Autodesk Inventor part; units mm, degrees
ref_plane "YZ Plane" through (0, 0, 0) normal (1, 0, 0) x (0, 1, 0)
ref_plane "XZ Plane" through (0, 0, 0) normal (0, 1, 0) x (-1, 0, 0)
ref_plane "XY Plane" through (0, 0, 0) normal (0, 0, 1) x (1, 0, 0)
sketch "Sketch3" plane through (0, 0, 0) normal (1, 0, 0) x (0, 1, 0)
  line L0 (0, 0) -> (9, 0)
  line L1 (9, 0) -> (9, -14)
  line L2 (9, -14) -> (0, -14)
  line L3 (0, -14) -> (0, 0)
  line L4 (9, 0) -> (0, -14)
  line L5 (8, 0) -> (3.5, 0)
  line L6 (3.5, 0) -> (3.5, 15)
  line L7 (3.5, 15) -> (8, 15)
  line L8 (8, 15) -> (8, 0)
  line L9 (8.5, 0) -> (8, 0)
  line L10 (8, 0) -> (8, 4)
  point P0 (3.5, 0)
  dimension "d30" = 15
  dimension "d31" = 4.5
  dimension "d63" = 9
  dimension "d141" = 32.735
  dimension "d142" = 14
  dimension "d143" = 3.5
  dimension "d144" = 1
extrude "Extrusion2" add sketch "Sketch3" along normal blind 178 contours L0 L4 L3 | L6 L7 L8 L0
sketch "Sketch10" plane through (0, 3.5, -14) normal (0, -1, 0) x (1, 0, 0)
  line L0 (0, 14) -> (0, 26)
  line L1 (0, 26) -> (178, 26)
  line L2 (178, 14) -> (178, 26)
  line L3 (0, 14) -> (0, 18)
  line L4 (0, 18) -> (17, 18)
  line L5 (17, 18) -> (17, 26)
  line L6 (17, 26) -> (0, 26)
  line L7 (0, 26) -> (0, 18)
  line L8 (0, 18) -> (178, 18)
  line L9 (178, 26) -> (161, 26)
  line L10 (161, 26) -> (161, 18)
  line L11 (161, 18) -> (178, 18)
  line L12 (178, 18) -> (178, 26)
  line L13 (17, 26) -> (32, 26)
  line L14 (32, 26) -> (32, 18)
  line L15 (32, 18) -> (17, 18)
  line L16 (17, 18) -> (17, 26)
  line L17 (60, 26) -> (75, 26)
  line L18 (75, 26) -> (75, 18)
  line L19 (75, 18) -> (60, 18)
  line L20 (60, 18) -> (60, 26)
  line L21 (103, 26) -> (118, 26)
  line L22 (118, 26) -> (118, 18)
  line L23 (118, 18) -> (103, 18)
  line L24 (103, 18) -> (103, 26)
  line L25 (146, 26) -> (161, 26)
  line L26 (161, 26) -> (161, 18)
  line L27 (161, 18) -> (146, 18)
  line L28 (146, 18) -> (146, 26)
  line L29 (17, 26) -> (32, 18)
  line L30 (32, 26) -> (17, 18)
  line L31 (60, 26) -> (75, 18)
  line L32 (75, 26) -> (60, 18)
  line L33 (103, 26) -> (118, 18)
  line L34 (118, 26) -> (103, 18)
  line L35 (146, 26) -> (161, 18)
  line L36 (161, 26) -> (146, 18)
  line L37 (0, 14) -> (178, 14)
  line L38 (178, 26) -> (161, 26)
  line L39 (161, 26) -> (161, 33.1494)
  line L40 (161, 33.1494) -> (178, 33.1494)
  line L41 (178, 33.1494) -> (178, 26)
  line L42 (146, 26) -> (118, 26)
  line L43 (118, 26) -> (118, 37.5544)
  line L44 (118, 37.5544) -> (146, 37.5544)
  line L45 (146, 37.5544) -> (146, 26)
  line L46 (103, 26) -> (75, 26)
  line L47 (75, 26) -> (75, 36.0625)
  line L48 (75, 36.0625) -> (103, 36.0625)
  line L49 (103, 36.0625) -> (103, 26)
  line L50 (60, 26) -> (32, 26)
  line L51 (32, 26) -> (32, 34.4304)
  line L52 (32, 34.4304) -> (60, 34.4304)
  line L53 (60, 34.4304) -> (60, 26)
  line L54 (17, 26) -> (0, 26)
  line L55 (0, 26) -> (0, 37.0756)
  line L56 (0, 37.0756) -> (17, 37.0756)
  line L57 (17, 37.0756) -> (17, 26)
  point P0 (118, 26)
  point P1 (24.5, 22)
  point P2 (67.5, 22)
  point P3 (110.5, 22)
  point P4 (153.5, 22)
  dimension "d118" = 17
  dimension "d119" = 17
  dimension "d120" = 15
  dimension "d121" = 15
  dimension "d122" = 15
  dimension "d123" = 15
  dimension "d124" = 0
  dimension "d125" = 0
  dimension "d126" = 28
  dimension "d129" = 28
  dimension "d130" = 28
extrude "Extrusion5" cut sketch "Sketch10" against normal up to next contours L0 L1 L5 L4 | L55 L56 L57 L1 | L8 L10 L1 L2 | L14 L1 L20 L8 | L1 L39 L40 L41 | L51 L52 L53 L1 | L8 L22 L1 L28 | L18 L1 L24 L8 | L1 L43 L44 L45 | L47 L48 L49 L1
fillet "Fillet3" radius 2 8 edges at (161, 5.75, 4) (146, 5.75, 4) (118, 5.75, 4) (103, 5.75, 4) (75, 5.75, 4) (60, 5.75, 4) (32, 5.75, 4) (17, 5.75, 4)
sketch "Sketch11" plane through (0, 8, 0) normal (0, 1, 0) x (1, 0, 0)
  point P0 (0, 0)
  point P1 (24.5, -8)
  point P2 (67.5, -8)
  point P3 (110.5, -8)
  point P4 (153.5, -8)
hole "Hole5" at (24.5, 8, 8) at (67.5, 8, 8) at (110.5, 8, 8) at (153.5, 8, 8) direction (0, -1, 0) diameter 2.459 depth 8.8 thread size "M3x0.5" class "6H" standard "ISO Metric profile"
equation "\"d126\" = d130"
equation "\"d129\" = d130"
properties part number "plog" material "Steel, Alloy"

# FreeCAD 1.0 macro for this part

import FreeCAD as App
import Part
import Sketcher

V = App.Vector
Q = App.Units.Quantity


def edges_at(feature, points):
    """Names of the edges that pass closest to the given points."""
    edges = feature.Shape.Edges
    near = lambda p: min(range(len(edges)), key=lambda i: edges[i].distToShape(Part.Vertex(*p))[0])
    return sorted({f"Edge{near(p) + 1}" for p in points})

doc = App.newDocument("Part")
body = doc.addObject("PartDesign::Body", "Body")

sketch1 = body.newObject("Sketcher::SketchObject", "Sketch")
sketch1.AttachmentSupport = (doc.getObject("YZ_Plane"), [""])
sketch1.MapMode = "FlatFace"
sketch1.addGeometry(Part.LineSegment(V(3.5, 0, 0), V(0, 0, 0)), False)
sketch1.addGeometry(Part.LineSegment(V(0, 0, 0), V(0, -14, 0)), False)
sketch1.addGeometry(Part.LineSegment(V(0, -14, 0), V(9, 0, 0)), False)
sketch1.addGeometry(Part.LineSegment(V(9, 0, 0), V(8, 0, 0)), False)
sketch1.addGeometry(Part.LineSegment(V(8, 0, 0), V(8, 15, 0)), False)
sketch1.addGeometry(Part.LineSegment(V(8, 15, 0), V(3.5, 15, 0)), False)
sketch1.addGeometry(Part.LineSegment(V(3.5, 15, 0), V(3.5, 0, 0)), False)
sketch1.addConstraint(Sketcher.Constraint("Coincident", 0, 2, 1, 1))
sketch1.addConstraint(Sketcher.Constraint("Coincident", 1, 2, 2, 1))
sketch1.addConstraint(Sketcher.Constraint("Coincident", 2, 2, 3, 1))
sketch1.addConstraint(Sketcher.Constraint("Coincident", 3, 2, 4, 1))
sketch1.addConstraint(Sketcher.Constraint("Coincident", 4, 2, 5, 1))
sketch1.addConstraint(Sketcher.Constraint("Coincident", 5, 2, 6, 1))
sketch1.addConstraint(Sketcher.Constraint("Coincident", 6, 2, 0, 1))
sketch1.addConstraint(Sketcher.Constraint("Horizontal", 0))
sketch1.addConstraint(Sketcher.Constraint("Vertical", 1))
sketch1.addConstraint(Sketcher.Constraint("Horizontal", 3))
sketch1.addConstraint(Sketcher.Constraint("Vertical", 4))
sketch1.addConstraint(Sketcher.Constraint("Horizontal", 5))
sketch1.addConstraint(Sketcher.Constraint("Vertical", 6))
sketch1.addConstraint(Sketcher.Constraint("Coincident", 0, 2, -1, 1))
sketch1.addConstraint(Sketcher.Constraint("PointOnObject", 2, 2, -1))
sketch1.addConstraint(Sketcher.Constraint("DistanceX", 3, 2, 3, 1, Q("1 mm")))
sketch1.addConstraint(Sketcher.Constraint("DistanceY", 1, 2, 1, 1, Q("14 mm")))
sketch1.addConstraint(Sketcher.Constraint("DistanceY", 4, 1, 4, 2, Q("15 mm")))
sketch1.addConstraint(Sketcher.Constraint("DistanceX", 0, 2, 0, 1, Q("3.5 mm")))
sketch1.addConstraint(Sketcher.Constraint("DistanceX", 5, 2, 5, 1, Q("4.5 mm")))
pad1 = body.newObject("PartDesign::Pad", "Pad")
pad1.Profile = sketch1
pad1.Length = 178

sketch2 = body.newObject("Sketcher::SketchObject", "Sketch001")
sketch2.AttachmentSupport = (doc.getObject("XZ_Plane"), [""])
sketch2.MapMode = "FlatFace"
sketch2.AttachmentOffset = App.Placement(V(0, 0, -3.5), App.Rotation())
sketch2.addGeometry(Part.LineSegment(V(0, 4, 0), V(17, 4, 0)), False)
sketch2.addGeometry(Part.LineSegment(V(17, 4, 0), V(17, 23.0756, 0)), False)
sketch2.addGeometry(Part.LineSegment(V(17, 23.0756, 0), V(0, 23.0756, 0)), False)
sketch2.addGeometry(Part.LineSegment(V(0, 23.0756, 0), V(0, 4, 0)), False)
sketch2.addGeometry(Part.LineSegment(V(161, 4, 0), V(178, 4, 0)), False)
sketch2.addGeometry(Part.LineSegment(V(178, 4, 0), V(178, 19.1494, 0)), False)
sketch2.addGeometry(Part.LineSegment(V(178, 19.1494, 0), V(161, 19.1494, 0)), False)
sketch2.addGeometry(Part.LineSegment(V(161, 19.1494, 0), V(161, 4, 0)), False)
sketch2.addGeometry(Part.LineSegment(V(32, 4, 0), V(60, 4, 0)), False)
sketch2.addGeometry(Part.LineSegment(V(60, 4, 0), V(60, 20.4304, 0)), False)
sketch2.addGeometry(Part.LineSegment(V(60, 20.4304, 0), V(32, 20.4304, 0)), False)
sketch2.addGeometry(Part.LineSegment(V(32, 20.4304, 0), V(32, 4, 0)), False)
sketch2.addGeometry(Part.LineSegment(V(118, 4, 0), V(146, 4, 0)), False)
sketch2.addGeometry(Part.LineSegment(V(146, 4, 0), V(146, 23.5544, 0)), False)
sketch2.addGeometry(Part.LineSegment(V(146, 23.5544, 0), V(118, 23.5544, 0)), False)
sketch2.addGeometry(Part.LineSegment(V(118, 23.5544, 0), V(118, 4, 0)), False)
sketch2.addGeometry(Part.LineSegment(V(75, 4, 0), V(103, 4, 0)), False)
sketch2.addGeometry(Part.LineSegment(V(103, 4, 0), V(103, 22.0625, 0)), False)
sketch2.addGeometry(Part.LineSegment(V(103, 22.0625, 0), V(75, 22.0625, 0)), False)
sketch2.addGeometry(Part.LineSegment(V(75, 22.0625, 0), V(75, 4, 0)), False)
sketch2.addConstraint(Sketcher.Constraint("Coincident", 0, 2, 1, 1))
sketch2.addConstraint(Sketcher.Constraint("Coincident", 1, 2, 2, 1))
sketch2.addConstraint(Sketcher.Constraint("Coincident", 2, 2, 3, 1))
sketch2.addConstraint(Sketcher.Constraint("Coincident", 3, 2, 0, 1))
sketch2.addConstraint(Sketcher.Constraint("Coincident", 4, 2, 5, 1))
sketch2.addConstraint(Sketcher.Constraint("Coincident", 5, 2, 6, 1))
sketch2.addConstraint(Sketcher.Constraint("Coincident", 6, 2, 7, 1))
sketch2.addConstraint(Sketcher.Constraint("Coincident", 7, 2, 4, 1))
sketch2.addConstraint(Sketcher.Constraint("Coincident", 8, 2, 9, 1))
sketch2.addConstraint(Sketcher.Constraint("Coincident", 9, 2, 10, 1))
sketch2.addConstraint(Sketcher.Constraint("Coincident", 10, 2, 11, 1))
sketch2.addConstraint(Sketcher.Constraint("Coincident", 11, 2, 8, 1))
sketch2.addConstraint(Sketcher.Constraint("Coincident", 12, 2, 13, 1))
sketch2.addConstraint(Sketcher.Constraint("Coincident", 13, 2, 14, 1))
sketch2.addConstraint(Sketcher.Constraint("Coincident", 14, 2, 15, 1))
sketch2.addConstraint(Sketcher.Constraint("Coincident", 15, 2, 12, 1))
sketch2.addConstraint(Sketcher.Constraint("Coincident", 16, 2, 17, 1))
sketch2.addConstraint(Sketcher.Constraint("Coincident", 17, 2, 18, 1))
sketch2.addConstraint(Sketcher.Constraint("Coincident", 18, 2, 19, 1))
sketch2.addConstraint(Sketcher.Constraint("Coincident", 19, 2, 16, 1))
sketch2.addConstraint(Sketcher.Constraint("Horizontal", 0))
sketch2.addConstraint(Sketcher.Constraint("Vertical", 1))
sketch2.addConstraint(Sketcher.Constraint("Horizontal", 2))
sketch2.addConstraint(Sketcher.Constraint("Vertical", 3))
sketch2.addConstraint(Sketcher.Constraint("Horizontal", 4))
sketch2.addConstraint(Sketcher.Constraint("Vertical", 5))
sketch2.addConstraint(Sketcher.Constraint("Horizontal", 6))
sketch2.addConstraint(Sketcher.Constraint("Vertical", 7))
sketch2.addConstraint(Sketcher.Constraint("Horizontal", 8))
sketch2.addConstraint(Sketcher.Constraint("Vertical", 9))
sketch2.addConstraint(Sketcher.Constraint("Horizontal", 10))
sketch2.addConstraint(Sketcher.Constraint("Vertical", 11))
sketch2.addConstraint(Sketcher.Constraint("Horizontal", 12))
sketch2.addConstraint(Sketcher.Constraint("Vertical", 13))
sketch2.addConstraint(Sketcher.Constraint("Horizontal", 14))
sketch2.addConstraint(Sketcher.Constraint("Vertical", 15))
sketch2.addConstraint(Sketcher.Constraint("Horizontal", 16))
sketch2.addConstraint(Sketcher.Constraint("Vertical", 17))
sketch2.addConstraint(Sketcher.Constraint("Horizontal", 18))
sketch2.addConstraint(Sketcher.Constraint("Vertical", 19))
sketch2.addConstraint(Sketcher.Constraint("PointOnObject", 2, 2, -2))
sketch2.addConstraint(Sketcher.Constraint("Horizontal", 3, 2, 4, 2))
sketch2.addConstraint(Sketcher.Constraint("Horizontal", 7, 2, 8, 2))
sketch2.addConstraint(Sketcher.Constraint("Horizontal", 11, 2, 12, 2))
sketch2.addConstraint(Sketcher.Constraint("Horizontal", 15, 2, 16, 2))
sketch2.addConstraint(Sketcher.Constraint("Equal", 2, 4))
sketch2.addConstraint(Sketcher.Constraint("Equal", 10, 12))
sketch2.addConstraint(Sketcher.Constraint("Equal", 14, 16))
sketch2.addConstraint(Sketcher.Constraint("DistanceX", 0, 1, 0, 2, Q("17 mm")))
sketch2.addConstraint(Sketcher.Constraint("DistanceX", 8, 1, 8, 2, Q("28 mm")))
sketch2.addConstraint(Sketcher.Constraint("DistanceX", 1, 2, 10, 2, Q("15 mm")))
sketch2.addConstraint(Sketcher.Constraint("DistanceX", 12, 2, 7, 2, Q("15 mm")))
sketch2.addConstraint(Sketcher.Constraint("DistanceX", 16, 2, 15, 2, Q("15 mm")))
sketch2.addConstraint(Sketcher.Constraint("DistanceX", 9, 2, 18, 2, Q("15 mm")))
sketch2.addConstraint(Sketcher.Constraint("DistanceY", -1, 1, 0, 2, Q("4 mm")))
sketch2.addConstraint(Sketcher.Constraint("DistanceY", 1, 1, 1, 2, Q("19.0756 mm")))
sketch2.addConstraint(Sketcher.Constraint("DistanceY", 5, 1, 5, 2, Q("15.1494 mm")))
sketch2.addConstraint(Sketcher.Constraint("DistanceY", 9, 1, 9, 2, Q("16.4304 mm")))
sketch2.addConstraint(Sketcher.Constraint("DistanceY", 13, 1, 13, 2, Q("19.5544 mm")))
sketch2.addConstraint(Sketcher.Constraint("DistanceY", 17, 1, 17, 2, Q("18.0625 mm")))
pocket1 = body.newObject("PartDesign::Pocket", "Pocket")
pocket1.Profile = sketch2
pocket1.Type = "UpToFirst"
doc.recompute()

fillet = body.newObject("PartDesign::Fillet", "Fillet")
fillet.Base = (pocket1, edges_at(pocket1, [
    (161, 5.75, 4),
    (146, 5.75, 4),
    (118, 5.75, 4),
    (103, 5.75, 4),
    (75, 5.75, 4),
    (60, 5.75, 4),
    (32, 5.75, 4),
    (17, 5.75, 4),
]))
fillet.Radius = 2

sketch3 = body.newObject("Sketcher::SketchObject", "Sketch002")
sketch3.AttachmentSupport = (doc.getObject("XZ_Plane"), [""])
sketch3.MapMode = "FlatFace"
sketch3.AttachmentOffset = App.Placement(V(0, 0, -8), App.Rotation())
sketch3.addGeometry(Part.Circle(V(24.5, 8, 0), V(0, 0, 1), 1.2295), False)
sketch3.addGeometry(Part.Circle(V(67.5, 8, 0), V(0, 0, 1), 1.2295), False)
sketch3.addGeometry(Part.Circle(V(110.5, 8, 0), V(0, 0, 1), 1.2295), False)
sketch3.addGeometry(Part.Circle(V(153.5, 8, 0), V(0, 0, 1), 1.2295), False)
sketch3.addConstraint(Sketcher.Constraint("Equal", 0, 1))
sketch3.addConstraint(Sketcher.Constraint("Equal", 1, 2))
sketch3.addConstraint(Sketcher.Constraint("Equal", 2, 3))
sketch3.addConstraint(Sketcher.Constraint("Horizontal", 0, 3, 1, 3))
sketch3.addConstraint(Sketcher.Constraint("Horizontal", 1, 3, 2, 3))
sketch3.addConstraint(Sketcher.Constraint("Horizontal", 2, 3, 3, 3))
sketch3.addConstraint(Sketcher.Constraint("Diameter", 0, Q("2.459 mm")))
sketch3.addConstraint(Sketcher.Constraint("DistanceY", -1, 1, 0, 3, Q("8 mm")))
sketch3.addConstraint(Sketcher.Constraint("DistanceX", 0, 3, 1, 3, Q("43 mm")))
sketch3.addConstraint(Sketcher.Constraint("DistanceX", 1, 3, 2, 3, Q("43 mm")))
sketch3.addConstraint(Sketcher.Constraint("DistanceX", 2, 3, 3, 3, Q("43 mm")))
sketch3.addConstraint(Sketcher.Constraint("DistanceX", -1, 1, 0, 3, Q("24.5 mm")))
doc.recompute()
hole = body.newObject("PartDesign::Hole", "Hole")
hole.Profile = sketch3
hole.ThreadType = "None"
hole.Diameter = 2.459
hole.DepthType = "Dimension"
hole.Depth = 8.8
hole.DrillPoint = "Flat"
hole.Reversed = True

doc.recompute()
